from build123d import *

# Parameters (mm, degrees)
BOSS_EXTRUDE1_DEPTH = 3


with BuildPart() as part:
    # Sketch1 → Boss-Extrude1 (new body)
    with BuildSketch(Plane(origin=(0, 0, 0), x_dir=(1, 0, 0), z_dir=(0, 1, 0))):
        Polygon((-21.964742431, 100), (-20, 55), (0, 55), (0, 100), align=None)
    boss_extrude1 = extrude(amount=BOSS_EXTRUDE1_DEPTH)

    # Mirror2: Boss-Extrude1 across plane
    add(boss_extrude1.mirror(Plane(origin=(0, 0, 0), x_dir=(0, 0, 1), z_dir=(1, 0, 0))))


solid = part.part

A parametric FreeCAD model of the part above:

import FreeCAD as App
import Part
import Sketcher

V = App.Vector
Q = App.Units.Quantity


def add_polygon(sketch, points):
    """Adds a closed chain of lines whose ends are joined by coincident constraints."""
    first, n = sketch.GeometryCount, len(points)
    for a, b in zip(points, points[1:] + points[:1]):
        sketch.addGeometry(Part.LineSegment(App.Vector(*a, 0), App.Vector(*b, 0)), False)
    for i in range(n):
        sketch.addConstraint(Sketcher.Constraint("Coincident", first + i, 2, first + (i + 1) % n, 1))

doc = App.newDocument("Part")
body = doc.addObject("PartDesign::Body", "Body")

sketch1 = doc.addObject("Sketcher::SketchObject", "Sketch")
body.addObject(sketch1)
sketch1.AttachmentSupport = (doc.XZ_Plane, [""])
sketch1.MapMode = "FlatFace"
add_polygon(sketch1, [(-21.964742, -100), (-20, -55), (0, -55), (0, -100)])
sketch1.addConstraint([
    Sketcher.Constraint("Horizontal", 1),
    Sketcher.Constraint("Vertical", 2),
    Sketcher.Constraint("Horizontal", 3),
    Sketcher.Constraint("PointOnObject", 1, 2, -2),
    Sketcher.Constraint("DistanceX", 1, 1, 1, 2, Q("20 mm")),
    Sketcher.Constraint("DistanceY", 2, 2, 2, 1, Q("45 mm")),
    Sketcher.Constraint("DistanceY", 0, 2, -1, 1, Q("55 mm")),
    Sketcher.Constraint("Angle", 0, Q("87.5 deg")),
])
pad1 = doc.addObject("PartDesign::Pad", "Pad")
body.addObject(pad1)
pad1.Profile = sketch1
pad1.Length = 3
pad1.Reversed = True
doc.recompute()

mirrored = doc.addObject("PartDesign::Mirrored", "Mirrored")
body.addObject(mirrored)
mirrored.Originals = [pad1]
mirrored.MirrorPlane = (doc.YZ_Plane, [""])
body.Tip = mirrored

doc.recompute()
